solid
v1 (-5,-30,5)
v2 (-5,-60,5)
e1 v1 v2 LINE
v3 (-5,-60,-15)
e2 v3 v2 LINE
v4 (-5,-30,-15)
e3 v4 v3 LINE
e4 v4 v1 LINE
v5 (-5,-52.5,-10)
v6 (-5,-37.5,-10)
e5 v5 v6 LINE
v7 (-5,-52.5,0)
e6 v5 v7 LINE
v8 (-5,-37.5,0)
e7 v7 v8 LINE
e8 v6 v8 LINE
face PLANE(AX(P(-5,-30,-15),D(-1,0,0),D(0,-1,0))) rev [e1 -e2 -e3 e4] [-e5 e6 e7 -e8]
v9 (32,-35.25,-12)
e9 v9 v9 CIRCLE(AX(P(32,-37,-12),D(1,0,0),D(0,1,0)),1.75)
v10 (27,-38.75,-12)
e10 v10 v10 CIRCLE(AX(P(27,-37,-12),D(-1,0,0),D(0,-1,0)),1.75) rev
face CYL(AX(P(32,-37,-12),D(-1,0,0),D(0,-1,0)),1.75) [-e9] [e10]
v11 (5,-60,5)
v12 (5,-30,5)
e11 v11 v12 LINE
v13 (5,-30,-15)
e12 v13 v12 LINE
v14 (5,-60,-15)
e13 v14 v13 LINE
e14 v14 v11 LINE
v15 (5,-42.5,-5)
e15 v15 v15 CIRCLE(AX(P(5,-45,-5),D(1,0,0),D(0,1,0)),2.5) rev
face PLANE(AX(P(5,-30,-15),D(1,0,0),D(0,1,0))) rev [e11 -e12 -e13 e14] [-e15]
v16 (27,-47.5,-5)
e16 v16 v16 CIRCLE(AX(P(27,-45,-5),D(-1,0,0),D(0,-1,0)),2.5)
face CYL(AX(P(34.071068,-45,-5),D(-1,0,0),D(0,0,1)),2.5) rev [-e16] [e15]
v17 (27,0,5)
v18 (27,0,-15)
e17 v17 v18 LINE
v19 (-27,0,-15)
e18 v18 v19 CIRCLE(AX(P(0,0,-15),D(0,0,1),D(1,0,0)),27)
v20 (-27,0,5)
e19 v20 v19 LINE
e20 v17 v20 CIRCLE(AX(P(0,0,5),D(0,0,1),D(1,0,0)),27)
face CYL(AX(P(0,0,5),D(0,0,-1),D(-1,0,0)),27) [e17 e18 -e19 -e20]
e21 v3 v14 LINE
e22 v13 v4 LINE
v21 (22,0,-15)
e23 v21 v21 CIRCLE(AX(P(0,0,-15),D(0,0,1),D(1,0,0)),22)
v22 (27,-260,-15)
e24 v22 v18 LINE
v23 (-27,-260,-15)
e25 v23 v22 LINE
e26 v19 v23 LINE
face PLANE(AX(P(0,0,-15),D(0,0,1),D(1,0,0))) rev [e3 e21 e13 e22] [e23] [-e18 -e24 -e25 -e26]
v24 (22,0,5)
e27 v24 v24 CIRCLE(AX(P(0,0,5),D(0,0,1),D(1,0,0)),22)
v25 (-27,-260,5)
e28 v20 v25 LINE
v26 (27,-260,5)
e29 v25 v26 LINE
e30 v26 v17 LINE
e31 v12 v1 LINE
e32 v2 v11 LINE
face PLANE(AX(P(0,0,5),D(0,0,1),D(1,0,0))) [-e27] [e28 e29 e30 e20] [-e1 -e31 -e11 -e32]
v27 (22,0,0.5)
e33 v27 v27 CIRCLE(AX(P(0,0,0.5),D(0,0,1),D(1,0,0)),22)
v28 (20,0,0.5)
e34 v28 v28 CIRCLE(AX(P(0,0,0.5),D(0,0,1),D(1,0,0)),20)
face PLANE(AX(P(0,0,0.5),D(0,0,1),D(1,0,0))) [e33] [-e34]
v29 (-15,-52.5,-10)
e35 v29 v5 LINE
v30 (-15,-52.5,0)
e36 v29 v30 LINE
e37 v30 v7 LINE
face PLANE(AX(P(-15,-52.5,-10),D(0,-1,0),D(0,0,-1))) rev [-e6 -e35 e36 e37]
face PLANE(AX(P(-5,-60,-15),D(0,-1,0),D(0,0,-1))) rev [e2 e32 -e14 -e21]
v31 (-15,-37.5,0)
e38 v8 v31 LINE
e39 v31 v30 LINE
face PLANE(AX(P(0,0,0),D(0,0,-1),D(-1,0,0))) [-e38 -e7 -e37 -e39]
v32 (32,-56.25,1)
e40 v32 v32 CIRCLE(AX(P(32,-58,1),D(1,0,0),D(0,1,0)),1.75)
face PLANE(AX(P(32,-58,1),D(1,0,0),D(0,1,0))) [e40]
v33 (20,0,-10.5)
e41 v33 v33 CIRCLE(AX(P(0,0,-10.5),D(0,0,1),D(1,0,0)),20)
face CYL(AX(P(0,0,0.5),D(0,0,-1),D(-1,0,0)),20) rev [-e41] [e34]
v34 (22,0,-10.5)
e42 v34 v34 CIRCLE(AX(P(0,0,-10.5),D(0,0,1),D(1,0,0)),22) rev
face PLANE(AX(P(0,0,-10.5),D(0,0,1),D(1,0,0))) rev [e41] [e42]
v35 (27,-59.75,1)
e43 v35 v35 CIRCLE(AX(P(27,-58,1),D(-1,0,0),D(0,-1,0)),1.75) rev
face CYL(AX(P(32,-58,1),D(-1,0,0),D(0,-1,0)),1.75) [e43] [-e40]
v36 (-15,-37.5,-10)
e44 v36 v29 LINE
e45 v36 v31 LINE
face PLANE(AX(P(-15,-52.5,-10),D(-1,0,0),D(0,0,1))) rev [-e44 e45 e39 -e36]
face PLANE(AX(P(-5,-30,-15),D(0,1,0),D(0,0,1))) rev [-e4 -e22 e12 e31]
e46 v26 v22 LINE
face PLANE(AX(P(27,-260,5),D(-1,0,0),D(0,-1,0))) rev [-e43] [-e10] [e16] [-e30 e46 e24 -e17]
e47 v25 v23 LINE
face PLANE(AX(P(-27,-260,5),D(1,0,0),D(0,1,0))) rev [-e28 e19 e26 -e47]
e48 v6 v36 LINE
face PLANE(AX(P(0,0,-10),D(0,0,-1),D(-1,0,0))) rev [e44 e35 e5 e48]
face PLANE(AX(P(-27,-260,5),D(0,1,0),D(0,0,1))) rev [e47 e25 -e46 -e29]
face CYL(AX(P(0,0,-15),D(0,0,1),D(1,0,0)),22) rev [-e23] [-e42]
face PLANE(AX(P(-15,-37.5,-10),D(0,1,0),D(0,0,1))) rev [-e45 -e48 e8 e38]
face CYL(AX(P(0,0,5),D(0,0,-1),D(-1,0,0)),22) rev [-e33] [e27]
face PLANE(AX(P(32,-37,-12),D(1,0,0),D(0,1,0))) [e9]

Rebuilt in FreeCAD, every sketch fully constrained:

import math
import FreeCAD as App
import Part
import Sketcher
Q = App.Units.Quantity

doc = App.newDocument("Part")
body = doc.addObject("PartDesign::Body", "Body")

# Sketch on XY plane
sketch1 = body.newObject("Sketcher::SketchObject", "Sketch")
sketch1.AttachmentSupport = (doc.getObject("XY_Plane"), [""])
sketch1.MapMode = "FlatFace"
sketch1.addGeometry([
    Part.LineSegment(App.Vector(-27, -260, 0), App.Vector(27, -260, 0)),  # 0
    Part.LineSegment(App.Vector(27, -260, 0), App.Vector(27, 0, 0)),  # 1
    Part.ArcOfCircle(Part.Circle(App.Vector(0, 0, 0), App.Vector(0, 0, 1), 27), math.radians(0), math.radians(180)),  # 2
    Part.LineSegment(App.Vector(-27, 0, 0), App.Vector(-27, -260, 0)),  # 3
    Part.Circle(App.Vector(0, 0, 0), App.Vector(0, 0, 1), 22),  # 4
], False)
sketch1.addConstraint([
    Sketcher.Constraint("Coincident", 0, 2, 1, 1),
    Sketcher.Constraint("Tangent", 1, 2, 2, 1),
    Sketcher.Constraint("Tangent", 2, 2, 3, 1),
    Sketcher.Constraint("Coincident", 3, 2, 0, 1),
    Sketcher.Constraint("Horizontal", 0),
    Sketcher.Constraint("Vertical", 1),
    Sketcher.Constraint("Vertical", 3),
    Sketcher.Constraint("Coincident", 2, 3, -1, 1),
    Sketcher.Constraint("Coincident", 4, 3, -1, 1),
    Sketcher.Constraint("Diameter", 4, Q("44 mm")),
    Sketcher.Constraint("Radius", 2, Q("27 mm")),
    Sketcher.Constraint("DistanceY", 1, 1, 1, 2, Q("260 mm")),
])
pad1 = body.newObject("PartDesign::Pad", "Pad")
pad1.Profile = sketch1
pad1.Length = 5

# Sketch on XY plane
sketch2 = body.newObject("Sketcher::SketchObject", "Sketch001")
sketch2.AttachmentSupport = (doc.getObject("XY_Plane"), [""])
sketch2.MapMode = "FlatFace"
sketch2.addGeometry([
    Part.Circle(App.Vector(0, 0, 0), App.Vector(0, 0, 1), 22),
    Part.Circle(App.Vector(0, 0, 0), App.Vector(0, 0, 1), 20),
], False)
sketch2.addConstraint([
    Sketcher.Constraint("Coincident", 0, 3, -1, 1),
    Sketcher.Constraint("Coincident", 1, 3, -1, 1),
    Sketcher.Constraint("Diameter", 0, Q("44 mm")),
    Sketcher.Constraint("Diameter", 1, Q("40 mm")),
])
pad2 = body.newObject("PartDesign::Pad", "Pad001")
pad2.Profile = sketch2
pad2.Length = 0.5

# Sketch on XY plane
sketch3 = body.newObject("Sketcher::SketchObject", "Sketch002")
sketch3.AttachmentSupport = (doc.getObject("XY_Plane"), [""])
sketch3.MapMode = "FlatFace"
sketch3.AttachmentOffset = App.Placement(App.Vector(0, 0, -15), App.Rotation())
sketch3.addGeometry([
    Part.LineSegment(App.Vector(-27, -260, 0), App.Vector(27, -260, 0)),  # 0
    Part.LineSegment(App.Vector(27, -260, 0), App.Vector(27, 0, 0)),  # 1
    Part.ArcOfCircle(Part.Circle(App.Vector(0, 0, 0), App.Vector(0, 0, 1), 27), math.radians(0), math.radians(180)),  # 2
    Part.LineSegment(App.Vector(-27, 0, 0), App.Vector(-27, -260, 0)),  # 3
    Part.Circle(App.Vector(0, 0, 0), App.Vector(0, 0, 1), 22),  # 4
], False)
sketch3.addConstraint([
    Sketcher.Constraint("Coincident", 0, 2, 1, 1),
    Sketcher.Constraint("Tangent", 1, 2, 2, 1),
    Sketcher.Constraint("Tangent", 2, 2, 3, 1),
    Sketcher.Constraint("Coincident", 3, 2, 0, 1),
    Sketcher.Constraint("Horizontal", 0),
    Sketcher.Constraint("Vertical", 1),
    Sketcher.Constraint("Vertical", 3),
    Sketcher.Constraint("Coincident", 2, 3, -1, 1),
    Sketcher.Constraint("Coincident", 4, 3, -1, 1),
    Sketcher.Constraint("Diameter", 4, Q("44 mm")),
    Sketcher.Constraint("Radius", 2, Q("27 mm")),
    Sketcher.Constraint("DistanceY", 1, 1, 1, 2, Q("260 mm")),
])
pad3 = body.newObject("PartDesign::Pad", "Pad002")
pad3.Profile = sketch3
pad3.Length = 15

# Sketch on XY plane
sketch4 = body.newObject("Sketcher::SketchObject", "Sketch003")
sketch4.AttachmentSupport = (doc.getObject("XY_Plane"), [""])
sketch4.MapMode = "FlatFace"
sketch4.AttachmentOffset = App.Placement(App.Vector(0, 0, -10.5), App.Rotation())
sketch4.addGeometry([
    Part.Circle(App.Vector(0, 0, 0), App.Vector(0, 0, 1), 22),
    Part.Circle(App.Vector(0, 0, 0), App.Vector(0, 0, 1), 20),
], False)
sketch4.addConstraint([
    Sketcher.Constraint("Coincident", 0, 3, -1, 1),
    Sketcher.Constraint("Coincident", 1, 3, -1, 1),
    Sketcher.Constraint("Diameter", 0, Q("44 mm")),
    Sketcher.Constraint("Diameter", 1, Q("40 mm")),
])
pad4 = body.newObject("PartDesign::Pad", "Pad003")
pad4.Profile = sketch4
pad4.Length = 10.5

# Sketch on XY plane
sketch5 = body.newObject("Sketcher::SketchObject", "Sketch004")
sketch5.AttachmentSupport = (doc.getObject("XY_Plane"), [""])
sketch5.MapMode = "FlatFace"
sketch5.AttachmentOffset = App.Placement(App.Vector(0, 0, 5), App.Rotation())
sketch5.addGeometry([
    Part.LineSegment(App.Vector(-5, -30, 0), App.Vector(-5, -60, 0)),
    Part.LineSegment(App.Vector(-5, -60, 0), App.Vector(5, -60, 0)),
    Part.LineSegment(App.Vector(5, -60, 0), App.Vector(5, -30, 0)),
    Part.LineSegment(App.Vector(5, -30, 0), App.Vector(-5, -30, 0)),
], False)
sketch5.addConstraint([
    Sketcher.Constraint("Coincident", 0, 2, 1, 1),
    Sketcher.Constraint("Coincident", 1, 2, 2, 1),
    Sketcher.Constraint("Coincident", 2, 2, 3, 1),
    Sketcher.Constraint("Coincident", 3, 2, 0, 1),
    Sketcher.Constraint("Vertical", 0),
    Sketcher.Constraint("Horizontal", 1),
    Sketcher.Constraint("Vertical", 2),
    Sketcher.Constraint("Horizontal", 3),
    Sketcher.Constraint("DistanceX", 1, 1, 1, 2, Q("10 mm")),
    Sketcher.Constraint("DistanceY", 0, 2, 0, 1, Q("30 mm")),
    Sketcher.Constraint("DistanceX", 0, 2, -1, 1, Q("5 mm")),
    Sketcher.Constraint("DistanceY", 0, 2, -1, 1, Q("60 mm")),
])
pocket1 = body.newObject("PartDesign::Pocket", "Pocket")
pocket1.Profile = sketch5
pocket1.Type = "ThroughAll"
pocket1.Midplane = True

# Sketch on XY plane
sketch6 = body.newObject("Sketcher::SketchObject", "Sketch005")
sketch6.AttachmentSupport = (doc.getObject("XY_Plane"), [""])
sketch6.MapMode = "FlatFace"
sketch6.addGeometry([
    Part.LineSegment(App.Vector(-15, -52, 0), App.Vector(-5, -52, 0)),
    Part.LineSegment(App.Vector(-5, -52, 0), App.Vector(-5, -38, 0)),
    Part.LineSegment(App.Vector(-5, -38, 0), App.Vector(-15, -38, 0)),
    Part.LineSegment(App.Vector(-15, -38, 0), App.Vector(-15, -52, 0)),
], False)
sketch6.addConstraint([
    Sketcher.Constraint("Coincident", 0, 2, 1, 1),
    Sketcher.Constraint("Coincident", 1, 2, 2, 1),
    Sketcher.Constraint("Coincident", 2, 2, 3, 1),
    Sketcher.Constraint("Coincident", 3, 2, 0, 1),
    Sketcher.Constraint("Horizontal", 0),
    Sketcher.Constraint("Vertical", 1),
    Sketcher.Constraint("Horizontal", 2),
    Sketcher.Constraint("Vertical", 3),
    Sketcher.Constraint("DistanceX", 0, 1, 0, 2, Q("10 mm")),
    Sketcher.Constraint("DistanceY", 1, 1, 1, 2, Q("15 mm")),
    Sketcher.Constraint("DistanceX", 0, 2, -1, 1, Q("5 mm")),
    Sketcher.Constraint("DistanceY", 0, 2, -1, 1, Q("52.5 mm")),
])
pocket2 = body.newObject("PartDesign::Pocket", "Pocket001")
pocket2.Profile = sketch6
pocket2.Length = 10

# Sketch on YZ plane
sketch7 = body.newObject("Sketcher::SketchObject", "Sketch006")
sketch7.AttachmentSupport = (doc.getObject("YZ_Plane"), [""])
sketch7.MapMode = "FlatFace"
sketch7.addGeometry(Part.Circle(App.Vector(-45, -5, 0), App.Vector(0, 0, 1), 2.5), False)
sketch7.addConstraint([
    Sketcher.Constraint("Diameter", 0, Q("5 mm")),
    Sketcher.Constraint("DistanceX", 0, 3, -1, 1, Q("45 mm")),
    Sketcher.Constraint("DistanceY", 0, 3, -1, 1, Q("5 mm")),
])
pocket3 = body.newObject("PartDesign::Pocket", "Pocket002")
pocket3.Profile = sketch7
pocket3.Length = 27
pocket3.Reversed = True

# Sketch on YZ plane
sketch8 = body.newObject("Sketcher::SketchObject", "Sketch007")
sketch8.AttachmentSupport = (doc.getObject("YZ_Plane"), [""])
sketch8.MapMode = "FlatFace"
sketch8.AttachmentOffset = App.Placement(App.Vector(0, 0, 27), App.Rotation())
sketch8.addGeometry([
    Part.Circle(App.Vector(-37, -12, 0), App.Vector(0, 0, 1), 1.8),
    Part.Circle(App.Vector(-58, 1, 0), App.Vector(0, 0, 1), 1.8),
], False)
sketch8.addConstraint([
    Sketcher.Constraint("Equal", 0, 1),
    Sketcher.Constraint("Diameter", 0, Q("3.5 mm")),
    Sketcher.Constraint("DistanceX", 0, 3, -1, 1, Q("37 mm")),
    Sketcher.Constraint("DistanceY", 0, 3, -1, 1, Q("12 mm")),
    Sketcher.Constraint("DistanceX", 1, 3, -1, 1, Q("58 mm")),
    Sketcher.Constraint("DistanceY", -1, 1, 1, 3, Q("1 mm")),
])
pad5 = body.newObject("PartDesign::Pad", "Pad004")
pad5.Profile = sketch8
pad5.Length = 5

doc.recompute()
